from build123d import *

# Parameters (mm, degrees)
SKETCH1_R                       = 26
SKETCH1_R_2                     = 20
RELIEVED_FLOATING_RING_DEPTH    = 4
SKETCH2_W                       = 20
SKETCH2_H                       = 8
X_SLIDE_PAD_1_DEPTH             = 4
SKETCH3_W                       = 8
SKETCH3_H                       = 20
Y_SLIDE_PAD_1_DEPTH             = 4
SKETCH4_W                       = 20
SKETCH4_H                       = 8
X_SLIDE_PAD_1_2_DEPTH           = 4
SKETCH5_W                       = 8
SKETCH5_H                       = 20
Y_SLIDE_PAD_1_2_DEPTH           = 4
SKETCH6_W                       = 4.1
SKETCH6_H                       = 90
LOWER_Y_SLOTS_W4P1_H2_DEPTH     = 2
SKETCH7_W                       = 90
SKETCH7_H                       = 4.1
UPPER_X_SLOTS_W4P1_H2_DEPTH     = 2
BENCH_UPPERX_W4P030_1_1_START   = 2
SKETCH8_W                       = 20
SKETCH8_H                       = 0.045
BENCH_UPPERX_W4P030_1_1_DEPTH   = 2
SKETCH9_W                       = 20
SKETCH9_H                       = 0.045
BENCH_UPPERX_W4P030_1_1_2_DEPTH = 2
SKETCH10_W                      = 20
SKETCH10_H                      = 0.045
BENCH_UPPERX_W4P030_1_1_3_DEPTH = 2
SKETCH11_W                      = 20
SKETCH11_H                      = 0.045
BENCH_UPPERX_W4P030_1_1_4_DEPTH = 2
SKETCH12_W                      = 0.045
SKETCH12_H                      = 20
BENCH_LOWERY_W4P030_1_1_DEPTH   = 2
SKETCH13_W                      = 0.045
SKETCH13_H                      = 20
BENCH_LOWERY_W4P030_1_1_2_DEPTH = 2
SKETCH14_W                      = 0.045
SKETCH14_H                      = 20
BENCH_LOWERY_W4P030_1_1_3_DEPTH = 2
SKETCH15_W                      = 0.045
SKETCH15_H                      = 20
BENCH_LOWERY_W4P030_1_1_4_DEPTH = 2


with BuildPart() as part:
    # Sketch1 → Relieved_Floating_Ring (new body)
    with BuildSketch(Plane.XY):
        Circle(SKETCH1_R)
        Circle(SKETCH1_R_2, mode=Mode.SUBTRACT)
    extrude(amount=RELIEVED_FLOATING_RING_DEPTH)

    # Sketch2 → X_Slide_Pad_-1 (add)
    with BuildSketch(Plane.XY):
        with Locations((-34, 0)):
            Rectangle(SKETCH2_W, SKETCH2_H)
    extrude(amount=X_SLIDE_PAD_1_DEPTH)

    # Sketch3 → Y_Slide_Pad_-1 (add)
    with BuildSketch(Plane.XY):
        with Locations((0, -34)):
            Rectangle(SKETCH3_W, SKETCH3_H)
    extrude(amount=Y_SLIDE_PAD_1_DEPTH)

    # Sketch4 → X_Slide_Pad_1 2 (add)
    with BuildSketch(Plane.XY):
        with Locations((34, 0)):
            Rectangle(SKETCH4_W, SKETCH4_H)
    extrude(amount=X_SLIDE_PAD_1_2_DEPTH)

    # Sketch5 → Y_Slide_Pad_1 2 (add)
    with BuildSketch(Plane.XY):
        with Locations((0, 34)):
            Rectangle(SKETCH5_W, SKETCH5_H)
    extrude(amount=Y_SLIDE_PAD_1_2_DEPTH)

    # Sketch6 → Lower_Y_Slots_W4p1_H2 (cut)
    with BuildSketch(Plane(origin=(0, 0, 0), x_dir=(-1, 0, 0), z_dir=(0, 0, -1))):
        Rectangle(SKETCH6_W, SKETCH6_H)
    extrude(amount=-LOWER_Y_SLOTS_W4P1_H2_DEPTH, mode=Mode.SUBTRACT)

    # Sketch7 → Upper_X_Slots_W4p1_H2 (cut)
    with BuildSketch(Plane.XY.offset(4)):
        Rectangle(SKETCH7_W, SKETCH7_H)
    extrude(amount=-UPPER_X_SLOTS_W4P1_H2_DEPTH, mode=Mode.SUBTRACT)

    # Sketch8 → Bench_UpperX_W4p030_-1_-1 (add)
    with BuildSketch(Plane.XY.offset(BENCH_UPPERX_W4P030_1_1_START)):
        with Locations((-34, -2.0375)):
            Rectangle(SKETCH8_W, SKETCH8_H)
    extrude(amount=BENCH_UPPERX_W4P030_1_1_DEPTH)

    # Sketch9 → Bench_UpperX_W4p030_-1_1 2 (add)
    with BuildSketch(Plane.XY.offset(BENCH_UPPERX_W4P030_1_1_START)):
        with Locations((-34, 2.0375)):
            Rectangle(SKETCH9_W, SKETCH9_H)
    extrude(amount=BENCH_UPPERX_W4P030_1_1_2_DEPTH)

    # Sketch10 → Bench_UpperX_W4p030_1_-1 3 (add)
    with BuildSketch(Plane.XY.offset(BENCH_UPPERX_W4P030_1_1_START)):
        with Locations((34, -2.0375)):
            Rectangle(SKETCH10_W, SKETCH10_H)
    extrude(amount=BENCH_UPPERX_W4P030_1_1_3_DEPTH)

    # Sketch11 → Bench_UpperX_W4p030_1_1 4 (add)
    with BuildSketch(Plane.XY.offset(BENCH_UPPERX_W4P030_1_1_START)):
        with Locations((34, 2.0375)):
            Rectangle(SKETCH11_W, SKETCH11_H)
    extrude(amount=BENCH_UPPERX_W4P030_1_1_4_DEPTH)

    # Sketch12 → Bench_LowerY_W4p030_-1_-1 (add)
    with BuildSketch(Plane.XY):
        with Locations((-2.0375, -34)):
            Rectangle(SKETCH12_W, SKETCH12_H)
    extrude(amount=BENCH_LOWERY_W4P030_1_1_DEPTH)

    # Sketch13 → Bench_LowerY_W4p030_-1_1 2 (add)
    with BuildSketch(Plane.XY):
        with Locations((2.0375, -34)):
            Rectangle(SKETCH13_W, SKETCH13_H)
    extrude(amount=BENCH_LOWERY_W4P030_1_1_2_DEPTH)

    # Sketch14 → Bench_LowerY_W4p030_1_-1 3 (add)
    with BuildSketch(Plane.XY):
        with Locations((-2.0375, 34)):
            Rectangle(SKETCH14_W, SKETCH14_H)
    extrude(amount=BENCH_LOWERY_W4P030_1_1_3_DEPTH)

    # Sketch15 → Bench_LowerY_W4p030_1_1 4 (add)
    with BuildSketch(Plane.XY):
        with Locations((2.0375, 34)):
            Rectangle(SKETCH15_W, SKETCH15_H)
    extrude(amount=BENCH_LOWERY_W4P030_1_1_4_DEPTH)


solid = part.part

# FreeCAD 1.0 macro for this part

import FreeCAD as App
import Part
import Sketcher

V = App.Vector
Q = App.Units.Quantity


def add_polygon(sketch, points):
    """Adds a closed chain of lines whose ends are joined by coincident constraints."""
    first, n = sketch.GeometryCount, len(points)
    for a, b in zip(points, points[1:] + points[:1]):
        sketch.addGeometry(Part.LineSegment(App.Vector(*a, 0), App.Vector(*b, 0)), False)
    for i in range(n):
        sketch.addConstraint(Sketcher.Constraint("Coincident", first + i, 2, first + (i + 1) % n, 1))

doc = App.newDocument("Part")
params = doc.addObject("Spreadsheet::Sheet", "Params")
for row, (alias, value) in enumerate([
    ("sketch1_diameter", "52 mm"),
    ("sketch1_diameter2", "40 mm"),
    ("pad1_length", "4 mm"),
    ("sketch2_width", "20 mm"),
    ("sketch2_height", "8 mm"),
    ("pad2_length", "4 mm"),
    ("sketch3_width", "8 mm"),
    ("sketch3_height", "20 mm"),
    ("pad3_length", "4 mm"),
    ("sketch4_width", "20 mm"),
    ("sketch4_height", "8 mm"),
    ("pad4_length", "4 mm"),
    ("sketch5_width", "8 mm"),
    ("sketch5_height", "20 mm"),
    ("pad5_length", "4 mm"),
    ("sketch6_height", "90 mm"),
    ("sketch6_width", "4.1 mm"),
    ("pocket1_length", "2 mm"),
    ("sketch7_width", "90 mm"),
    ("sketch7_height", "4.1 mm"),
    ("pocket2_length", "2 mm"),
    ("sketch8_width", "20 mm"),
    ("pad6_length", "2 mm"),
    ("sketch9_width", "20 mm"),
    ("pad7_length", "2 mm"),
    ("sketch10_width", "20 mm"),
    ("pad8_length", "2 mm"),
    ("sketch11_width", "20 mm"),
    ("pad9_length", "2 mm"),
    ("sketch12_height", "20 mm"),
    ("pad10_length", "2 mm"),
    ("sketch13_height", "20 mm"),
    ("pad11_length", "2 mm"),
    ("sketch14_height", "20 mm"),
    ("pad12_length", "2 mm"),
    ("sketch15_height", "20 mm"),
    ("pad13_length", "2 mm"),
], start=1):
    params.set(f"A{row}", alias)
    params.set(f"B{row}", "=" + value)
    params.setAlias(f"B{row}", alias)

body = doc.addObject("PartDesign::Body", "Body")

sketch1 = body.newObject("Sketcher::SketchObject", "Sketch")
sketch1.AttachmentSupport = (doc.getObject("XY_Plane"), [""])
sketch1.MapMode = "FlatFace"
sketch1.addGeometry([
    Part.Circle(V(0, 0, 0), V(0, 0, 1), 26),
    Part.Circle(V(0, 0, 0), V(0, 0, 1), 20),
], False)
sketch1.addConstraint([
    Sketcher.Constraint("Coincident", 0, 3, -1, 1),
    Sketcher.Constraint("Coincident", 1, 3, -1, 1),
    Sketcher.Constraint("Diameter", 0, Q("52 mm")),
    Sketcher.Constraint("Diameter", 1, Q("40 mm")),
])
sketch1.setExpression("Constraints[2]", "Params.sketch1_diameter")
sketch1.setExpression("Constraints[3]", "Params.sketch1_diameter2")
pad1 = body.newObject("PartDesign::Pad", "Pad")
pad1.Profile = sketch1
pad1.setExpression("Length", "Params.pad1_length")

sketch2 = body.newObject("Sketcher::SketchObject", "Sketch001")
sketch2.AttachmentSupport = (doc.getObject("XY_Plane"), [""])
sketch2.MapMode = "FlatFace"
add_polygon(sketch2, [(-44, 4), (-44, -4), (-24, -4), (-24, 4)])
sketch2.addConstraint([
    Sketcher.Constraint("Vertical", 0),
    Sketcher.Constraint("Horizontal", 1),
    Sketcher.Constraint("Vertical", 2),
    Sketcher.Constraint("Horizontal", 3),
    Sketcher.Constraint("DistanceX", 1, 1, 1, 2, Q("20 mm")),
    Sketcher.Constraint("DistanceY", 0, 2, 0, 1, Q("8 mm")),
    Sketcher.Constraint("DistanceX", 0, 2, -1, 1, Q("44 mm")),
    Sketcher.Constraint("DistanceY", 0, 2, -1, 1, Q("4 mm")),
])
sketch2.setExpression("Constraints[8]", "Params.sketch2_width")
sketch2.setExpression("Constraints[9]", "Params.sketch2_height")
pad2 = body.newObject("PartDesign::Pad", "Pad001")
pad2.Profile = sketch2
pad2.setExpression("Length", "Params.pad2_length")

sketch3 = body.newObject("Sketcher::SketchObject", "Sketch002")
sketch3.AttachmentSupport = (doc.getObject("XY_Plane"), [""])
sketch3.MapMode = "FlatFace"
add_polygon(sketch3, [(-4, -24), (-4, -44), (4, -44), (4, -24)])
sketch3.addConstraint([
    Sketcher.Constraint("Vertical", 0),
    Sketcher.Constraint("Horizontal", 1),
    Sketcher.Constraint("Vertical", 2),
    Sketcher.Constraint("Horizontal", 3),
    Sketcher.Constraint("DistanceX", 1, 1, 1, 2, Q("8 mm")),
    Sketcher.Constraint("DistanceY", 0, 2, 0, 1, Q("20 mm")),
    Sketcher.Constraint("DistanceX", 0, 2, -1, 1, Q("4 mm")),
    Sketcher.Constraint("DistanceY", 0, 2, -1, 1, Q("44 mm")),
])
sketch3.setExpression("Constraints[8]", "Params.sketch3_width")
sketch3.setExpression("Constraints[9]", "Params.sketch3_height")
pad3 = body.newObject("PartDesign::Pad", "Pad002")
pad3.Profile = sketch3
pad3.setExpression("Length", "Params.pad3_length")

sketch4 = body.newObject("Sketcher::SketchObject", "Sketch003")
sketch4.AttachmentSupport = (doc.getObject("XY_Plane"), [""])
sketch4.MapMode = "FlatFace"
add_polygon(sketch4, [(24, 4), (24, -4), (44, -4), (44, 4)])
sketch4.addConstraint([
    Sketcher.Constraint("Vertical", 0),
    Sketcher.Constraint("Horizontal", 1),
    Sketcher.Constraint("Vertical", 2),
    Sketcher.Constraint("Horizontal", 3),
    Sketcher.Constraint("DistanceX", 1, 1, 1, 2, Q("20 mm")),
    Sketcher.Constraint("DistanceY", 0, 2, 0, 1, Q("8 mm")),
    Sketcher.Constraint("DistanceX", -1, 1, 0, 2, Q("24 mm")),
    Sketcher.Constraint("DistanceY", 0, 2, -1, 1, Q("4 mm")),
])
sketch4.setExpression("Constraints[8]", "Params.sketch4_width")
sketch4.setExpression("Constraints[9]", "Params.sketch4_height")
pad4 = body.newObject("PartDesign::Pad", "Pad003")
pad4.Profile = sketch4
pad4.setExpression("Length", "Params.pad4_length")

sketch5 = body.newObject("Sketcher::SketchObject", "Sketch004")
sketch5.AttachmentSupport = (doc.getObject("XY_Plane"), [""])
sketch5.MapMode = "FlatFace"
add_polygon(sketch5, [(-4, 44), (-4, 24), (4, 24), (4, 44)])
sketch5.addConstraint([
    Sketcher.Constraint("Vertical", 0),
    Sketcher.Constraint("Horizontal", 1),
    Sketcher.Constraint("Vertical", 2),
    Sketcher.Constraint("Horizontal", 3),
    Sketcher.Constraint("DistanceX", 1, 1, 1, 2, Q("8 mm")),
    Sketcher.Constraint("DistanceY", 0, 2, 0, 1, Q("20 mm")),
    Sketcher.Constraint("DistanceX", 0, 2, -1, 1, Q("4 mm")),
    Sketcher.Constraint("DistanceY", -1, 1, 0, 2, Q("24 mm")),
])
sketch5.setExpression("Constraints[8]", "Params.sketch5_width")
sketch5.setExpression("Constraints[9]", "Params.sketch5_height")
pad5 = body.newObject("PartDesign::Pad", "Pad004")
pad5.Profile = sketch5
pad5.setExpression("Length", "Params.pad5_length")

sketch6 = body.newObject("Sketcher::SketchObject", "Sketch005")
sketch6.AttachmentSupport = (doc.getObject("XY_Plane"), [""])
sketch6.MapMode = "FlatFace"
add_polygon(sketch6, [(2.05, 45), (2.05, -45), (-2.05, -45), (-2.05, 45)])
sketch6.addConstraint([
    Sketcher.Constraint("Vertical", 0),
    Sketcher.Constraint("Horizontal", 1),
    Sketcher.Constraint("Vertical", 2),
    Sketcher.Constraint("Horizontal", 3),
    Sketcher.Constraint("Symmetric", 0, 2, 2, 2, -1, 1),
    Sketcher.Constraint("DistanceY", 0, 2, 0, 1, Q("90 mm")),
    Sketcher.Constraint("DistanceX", 1, 2, 1, 1, Q("4.1 mm")),
])
sketch6.setExpression("Constraints[9]", "Params.sketch6_height")
sketch6.setExpression("Constraints[10]", "Params.sketch6_width")
pocket1 = body.newObject("PartDesign::Pocket", "Pocket")
pocket1.Profile = sketch6
pocket1.setExpression("Length", "Params.pocket1_length")
pocket1.Reversed = True

sketch7 = body.newObject("Sketcher::SketchObject", "Sketch006")
sketch7.AttachmentSupport = (doc.getObject("XY_Plane"), [""])
sketch7.MapMode = "FlatFace"
sketch7.AttachmentOffset = App.Placement(V(0, 0, 4), App.Rotation())
add_polygon(sketch7, [(-45, 2.05), (-45, -2.05), (45, -2.05), (45, 2.05)])
sketch7.addConstraint([
    Sketcher.Constraint("Vertical", 0),
    Sketcher.Constraint("Horizontal", 1),
    Sketcher.Constraint("Vertical", 2),
    Sketcher.Constraint("Horizontal", 3),
    Sketcher.Constraint("Symmetric", 0, 2, 2, 2, -1, 1),
    Sketcher.Constraint("DistanceX", 1, 1, 1, 2, Q("90 mm")),
    Sketcher.Constraint("DistanceY", 0, 2, 0, 1, Q("4.1 mm")),
])
sketch7.setExpression("Constraints[9]", "Params.sketch7_width")
sketch7.setExpression("Constraints[10]", "Params.sketch7_height")
pocket2 = body.newObject("PartDesign::Pocket", "Pocket001")
pocket2.Profile = sketch7
pocket2.setExpression("Length", "Params.pocket2_length")

sketch8 = body.newObject("Sketcher::SketchObject", "Sketch007")
sketch8.AttachmentSupport = (doc.getObject("XY_Plane"), [""])
sketch8.MapMode = "FlatFace"
sketch8.AttachmentOffset = App.Placement(V(0, 0, 2), App.Rotation())
add_polygon(sketch8, [(-44, -2.015), (-44, -2.06), (-24, -2.06), (-24, -2.015)])
sketch8.addConstraint([
    Sketcher.Constraint("Vertical", 0),
    Sketcher.Constraint("Horizontal", 1),
    Sketcher.Constraint("Vertical", 2),
    Sketcher.Constraint("Horizontal", 3),
    Sketcher.Constraint("DistanceX", 1, 1, 1, 2, Q("20 mm")),
    Sketcher.Constraint("DistanceX", 0, 2, -1, 1, Q("44 mm")),
    Sketcher.Constraint("DistanceY", 0, 2, 0, 1, Q("0.045 mm")),
    Sketcher.Constraint("DistanceY", 0, 2, -1, 1, Q("2.06 mm")),
])
sketch8.setExpression("Constraints[8]", "Params.sketch8_width")
pad6 = body.newObject("PartDesign::Pad", "Pad005")
pad6.Profile = sketch8
pad6.setExpression("Length", "Params.pad6_length")

sketch9 = body.newObject("Sketcher::SketchObject", "Sketch008")
sketch9.AttachmentSupport = (doc.getObject("XY_Plane"), [""])
sketch9.MapMode = "FlatFace"
sketch9.AttachmentOffset = App.Placement(V(0, 0, 2), App.Rotation())
add_polygon(sketch9, [(-44, 2.06), (-44, 2.015), (-24, 2.015), (-24, 2.06)])
sketch9.addConstraint([
    Sketcher.Constraint("Vertical", 0),
    Sketcher.Constraint("Horizontal", 1),
    Sketcher.Constraint("Vertical", 2),
    Sketcher.Constraint("Horizontal", 3),
    Sketcher.Constraint("DistanceX", 1, 1, 1, 2, Q("20 mm")),
    Sketcher.Constraint("DistanceX", 0, 2, -1, 1, Q("44 mm")),
    Sketcher.Constraint("DistanceY", 0, 2, 0, 1, Q("0.045 mm")),
    Sketcher.Constraint("DistanceY", -1, 1, 2, 2, Q("2.06 mm")),
])
sketch9.setExpression("Constraints[8]", "Params.sketch9_width")
pad7 = body.newObject("PartDesign::Pad", "Pad006")
pad7.Profile = sketch9
pad7.setExpression("Length", "Params.pad7_length")

sketch10 = body.newObject("Sketcher::SketchObject", "Sketch009")
sketch10.AttachmentSupport = (doc.getObject("XY_Plane"), [""])
sketch10.MapMode = "FlatFace"
sketch10.AttachmentOffset = App.Placement(V(0, 0, 2), App.Rotation())
add_polygon(sketch10, [(24, -2.015), (24, -2.06), (44, -2.06), (44, -2.015)])
sketch10.addConstraint([
    Sketcher.Constraint("Vertical", 0),
    Sketcher.Constraint("Horizontal", 1),
    Sketcher.Constraint("Vertical", 2),
    Sketcher.Constraint("Horizontal", 3),
    Sketcher.Constraint("DistanceX", 1, 1, 1, 2, Q("20 mm")),
    Sketcher.Constraint("DistanceX", -1, 1, 0, 2, Q("24 mm")),
    Sketcher.Constraint("DistanceY", 0, 2, 0, 1, Q("0.045 mm")),
    Sketcher.Constraint("DistanceY", 0, 2, -1, 1, Q("2.06 mm")),
])
sketch10.setExpression("Constraints[8]", "Params.sketch10_width")
pad8 = body.newObject("PartDesign::Pad", "Pad007")
pad8.Profile = sketch10
pad8.setExpression("Length", "Params.pad8_length")

sketch11 = body.newObject("Sketcher::SketchObject", "Sketch010")
sketch11.AttachmentSupport = (doc.getObject("XY_Plane"), [""])
sketch11.MapMode = "FlatFace"
sketch11.AttachmentOffset = App.Placement(V(0, 0, 2), App.Rotation())
add_polygon(sketch11, [(24, 2.06), (24, 2.015), (44, 2.015), (44, 2.06)])
sketch11.addConstraint([
    Sketcher.Constraint("Vertical", 0),
    Sketcher.Constraint("Horizontal", 1),
    Sketcher.Constraint("Vertical", 2),
    Sketcher.Constraint("Horizontal", 3),
    Sketcher.Constraint("DistanceX", 1, 1, 1, 2, Q("20 mm")),
    Sketcher.Constraint("DistanceX", -1, 1, 0, 2, Q("24 mm")),
    Sketcher.Constraint("DistanceY", 0, 2, 0, 1, Q("0.045 mm")),
    Sketcher.Constraint("DistanceY", -1, 1, 2, 2, Q("2.06 mm")),
])
sketch11.setExpression("Constraints[8]", "Params.sketch11_width")
pad9 = body.newObject("PartDesign::Pad", "Pad008")
pad9.Profile = sketch11
pad9.setExpression("Length", "Params.pad9_length")

sketch12 = body.newObject("Sketcher::SketchObject", "Sketch011")
sketch12.AttachmentSupport = (doc.getObject("XY_Plane"), [""])
sketch12.MapMode = "FlatFace"
add_polygon(sketch12, [(-2.06, -24), (-2.06, -44), (-2.015, -44), (-2.015, -24)])
sketch12.addConstraint([
    Sketcher.Constraint("Vertical", 0),
    Sketcher.Constraint("Horizontal", 1),
    Sketcher.Constraint("Vertical", 2),
    Sketcher.Constraint("Horizontal", 3),
    Sketcher.Constraint("DistanceY", 0, 2, 0, 1, Q("20 mm")),
    Sketcher.Constraint("DistanceY", 0, 2, -1, 1, Q("44 mm")),
    Sketcher.Constraint("DistanceX", 1, 1, 1, 2, Q("0.045 mm")),
    Sketcher.Constraint("DistanceX", 0, 2, -1, 1, Q("2.06 mm")),
])
sketch12.setExpression("Constraints[8]", "Params.sketch12_height")
pad10 = body.newObject("PartDesign::Pad", "Pad009")
pad10.Profile = sketch12
pad10.setExpression("Length", "Params.pad10_length")

sketch13 = body.newObject("Sketcher::SketchObject", "Sketch012")
sketch13.AttachmentSupport = (doc.getObject("XY_Plane"), [""])
sketch13.MapMode = "FlatFace"
add_polygon(sketch13, [(2.015, -24), (2.015, -44), (2.06, -44), (2.06, -24)])
sketch13.addConstraint([
    Sketcher.Constraint("Vertical", 0),
    Sketcher.Constraint("Horizontal", 1),
    Sketcher.Constraint("Vertical", 2),
    Sketcher.Constraint("Horizontal", 3),
    Sketcher.Constraint("DistanceY", 0, 2, 0, 1, Q("20 mm")),
    Sketcher.Constraint("DistanceY", 0, 2, -1, 1, Q("44 mm")),
    Sketcher.Constraint("DistanceX", 1, 1, 1, 2, Q("0.045 mm")),
    Sketcher.Constraint("DistanceX", -1, 1, 1, 2, Q("2.06 mm")),
])
sketch13.setExpression("Constraints[8]", "Params.sketch13_height")
pad11 = body.newObject("PartDesign::Pad", "Pad010")
pad11.Profile = sketch13
pad11.setExpression("Length", "Params.pad11_length")

sketch14 = body.newObject("Sketcher::SketchObject", "Sketch013")
sketch14.AttachmentSupport = (doc.getObject("XY_Plane"), [""])
sketch14.MapMode = "FlatFace"
add_polygon(sketch14, [(-2.06, 44), (-2.06, 24), (-2.015, 24), (-2.015, 44)])
sketch14.addConstraint([
    Sketcher.Constraint("Vertical", 0),
    Sketcher.Constraint("Horizontal", 1),
    Sketcher.Constraint("Vertical", 2),
    Sketcher.Constraint("Horizontal", 3),
    Sketcher.Constraint("DistanceY", 0, 2, 0, 1, Q("20 mm")),
    Sketcher.Constraint("DistanceY", -1, 1, 0, 2, Q("24 mm")),
    Sketcher.Constraint("DistanceX", 1, 1, 1, 2, Q("0.045 mm")),
    Sketcher.Constraint("DistanceX", 0, 2, -1, 1, Q("2.06 mm")),
])
sketch14.setExpression("Constraints[8]", "Params.sketch14_height")
pad12 = body.newObject("PartDesign::Pad", "Pad011")
pad12.Profile = sketch14
pad12.setExpression("Length", "Params.pad12_length")

sketch15 = body.newObject("Sketcher::SketchObject", "Sketch014")
sketch15.AttachmentSupport = (doc.getObject("XY_Plane"), [""])
sketch15.MapMode = "FlatFace"
add_polygon(sketch15, [(2.015, 44), (2.015, 24), (2.06, 24), (2.06, 44)])
sketch15.addConstraint([
    Sketcher.Constraint("Vertical", 0),
    Sketcher.Constraint("Horizontal", 1),
    Sketcher.Constraint("Vertical", 2),
    Sketcher.Constraint("Horizontal", 3),
    Sketcher.Constraint("DistanceY", 0, 2, 0, 1, Q("20 mm")),
    Sketcher.Constraint("DistanceY", -1, 1, 0, 2, Q("24 mm")),
    Sketcher.Constraint("DistanceX", 1, 1, 1, 2, Q("0.045 mm")),
    Sketcher.Constraint("DistanceX", -1, 1, 1, 2, Q("2.06 mm")),
])
sketch15.setExpression("Constraints[8]", "Params.sketch15_height")
pad13 = body.newObject("PartDesign::Pad", "Pad012")
pad13.Profile = sketch15
pad13.setExpression("Length", "Params.pad13_length")

doc.recompute()
